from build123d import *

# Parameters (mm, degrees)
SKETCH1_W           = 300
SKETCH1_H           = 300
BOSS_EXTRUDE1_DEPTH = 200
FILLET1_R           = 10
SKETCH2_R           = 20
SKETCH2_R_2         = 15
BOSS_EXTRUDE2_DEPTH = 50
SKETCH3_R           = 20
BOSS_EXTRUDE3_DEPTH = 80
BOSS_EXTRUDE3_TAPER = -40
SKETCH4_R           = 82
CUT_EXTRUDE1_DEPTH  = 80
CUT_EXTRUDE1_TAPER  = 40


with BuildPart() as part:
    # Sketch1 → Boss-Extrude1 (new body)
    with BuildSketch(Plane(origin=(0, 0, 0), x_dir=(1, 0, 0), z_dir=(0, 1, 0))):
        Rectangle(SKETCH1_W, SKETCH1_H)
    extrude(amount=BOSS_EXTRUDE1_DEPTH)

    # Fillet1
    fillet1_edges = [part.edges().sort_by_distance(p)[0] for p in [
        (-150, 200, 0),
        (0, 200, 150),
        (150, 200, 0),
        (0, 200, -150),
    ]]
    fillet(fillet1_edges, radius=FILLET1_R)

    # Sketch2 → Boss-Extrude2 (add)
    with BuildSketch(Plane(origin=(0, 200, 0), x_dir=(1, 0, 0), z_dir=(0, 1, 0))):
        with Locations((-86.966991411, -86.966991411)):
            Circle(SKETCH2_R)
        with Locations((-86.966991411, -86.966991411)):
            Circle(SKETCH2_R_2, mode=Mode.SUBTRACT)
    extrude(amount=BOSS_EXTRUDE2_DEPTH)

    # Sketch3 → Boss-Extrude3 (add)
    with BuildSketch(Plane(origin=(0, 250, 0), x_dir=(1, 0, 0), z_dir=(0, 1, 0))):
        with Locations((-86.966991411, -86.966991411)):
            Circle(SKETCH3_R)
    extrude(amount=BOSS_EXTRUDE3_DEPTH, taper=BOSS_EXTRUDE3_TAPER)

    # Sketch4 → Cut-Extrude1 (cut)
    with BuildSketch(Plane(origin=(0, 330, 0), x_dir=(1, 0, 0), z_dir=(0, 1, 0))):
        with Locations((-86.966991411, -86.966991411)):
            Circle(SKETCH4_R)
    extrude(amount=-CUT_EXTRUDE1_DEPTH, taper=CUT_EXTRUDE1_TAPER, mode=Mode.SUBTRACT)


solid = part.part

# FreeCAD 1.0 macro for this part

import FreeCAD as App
import Part
import Sketcher

V = App.Vector


def edges_at(feature, points):
    """Names of the edges that pass closest to the given points."""
    edges = feature.Shape.Edges
    near = lambda p: min(range(len(edges)), key=lambda i: edges[i].distToShape(Part.Vertex(*p))[0])
    return sorted({f"Edge{near(p) + 1}" for p in points})


def add_polygon(sketch, points):
    """Adds a closed chain of lines whose ends are joined by coincident constraints."""
    first, n = sketch.GeometryCount, len(points)
    for a, b in zip(points, points[1:] + points[:1]):
        sketch.addGeometry(Part.LineSegment(App.Vector(*a, 0), App.Vector(*b, 0)), False)
    for i in range(n):
        sketch.addConstraint(Sketcher.Constraint("Coincident", first + i, 2, first + (i + 1) % n, 1))

doc = App.newDocument("Part")
params = doc.addObject("Spreadsheet::Sheet", "Params")
for row, (alias, value) in enumerate([
    ("sketch1_width", "300 mm"),
    ("pad1_length", "200 mm"),
    ("fillet_radius", "10 mm"),
    ("sketch2_diameter", "40 mm"),
    ("sketch2_diameter2", "30 mm"),
    ("pad2_length", "50 mm"),
    ("sketch3_diameter", "40 mm"),
    ("pad3_length", "80 mm"),
    ("pad3_taper", "40 deg"),
    ("sketch4_diameter", "164 mm"),
    ("pocket1_length", "80 mm"),
    ("pocket1_taper", "-40 deg"),
], start=1):
    params.set(f"A{row}", alias)
    params.set(f"B{row}", "=" + value)
    params.setAlias(f"B{row}", alias)

body = doc.addObject("PartDesign::Body", "Body")

# Sketch on XZ plane
sketch1 = body.newObject("Sketcher::SketchObject", "Sketch")
sketch1.AttachmentSupport = (doc.getObject("XZ_Plane"), [""])
sketch1.MapMode = "FlatFace"
add_polygon(sketch1, [(-150, -150), (-150, 150), (150, 150), (150, -150)])  # lines 0-3
sketch1.addConstraint([
    Sketcher.Constraint("Vertical", 0),
    Sketcher.Constraint("Horizontal", 1),
    Sketcher.Constraint("Vertical", 2),
    Sketcher.Constraint("Horizontal", 3),
    Sketcher.Constraint("Symmetric", 0, 2, 2, 2, -1, 1),
    Sketcher.Constraint("Equal", 3, 0),
    Sketcher.Constraint("DistanceX", 1, 1, 1, 2, 300.0),
])
sketch1.setExpression("Constraints[10]", "Params.sketch1_width")
pad1 = body.newObject("PartDesign::Pad", "Pad")
pad1.Profile = sketch1
pad1.setExpression("Length", "Params.pad1_length")
pad1.Reversed = True
doc.recompute()

fillet = body.newObject("PartDesign::Fillet", "Fillet")
fillet.Base = (pad1, edges_at(pad1, [
    (-150, 200, 0),
    (0, 200, 150),
    (150, 200, 0),
    (0, 200, -150),
]))
fillet.setExpression("Radius", "Params.fillet_radius")

# Sketch on XZ plane
sketch2 = body.newObject("Sketcher::SketchObject", "Sketch001")
sketch2.AttachmentSupport = (doc.getObject("XZ_Plane"), [""])
sketch2.MapMode = "FlatFace"
sketch2.AttachmentOffset = App.Placement(V(0, 0, -200), App.Rotation())
sketch2.addGeometry([
    Part.Circle(V(-87, 87, 0), V(0, 0, 1), 20),
    Part.Circle(V(-87, 87, 0), V(0, 0, 1), 15),
], False)
sketch2.addConstraint([
    Sketcher.Constraint("Coincident", 1, 3, 0, 3),
    Sketcher.Constraint("Diameter", 0, 40.0),
    Sketcher.Constraint("Diameter", 1, 30.0),
    Sketcher.Constraint("DistanceX", 0, 3, -1, 1, 86.966991),
    Sketcher.Constraint("DistanceY", -1, 1, 0, 3, 86.966991),
])
sketch2.setExpression("Constraints[1]", "Params.sketch2_diameter")
sketch2.setExpression("Constraints[2]", "Params.sketch2_diameter2")
pad2 = body.newObject("PartDesign::Pad", "Pad001")
pad2.Profile = sketch2
pad2.setExpression("Length", "Params.pad2_length")
pad2.Reversed = True

# Sketch on XZ plane
sketch3 = body.newObject("Sketcher::SketchObject", "Sketch002")
sketch3.AttachmentSupport = (doc.getObject("XZ_Plane"), [""])
sketch3.MapMode = "FlatFace"
sketch3.AttachmentOffset = App.Placement(V(0, 0, -250), App.Rotation())
sketch3.addGeometry(Part.Circle(V(-87, 87, 0), V(0, 0, 1), 20), False)
sketch3.addConstraint([
    Sketcher.Constraint("Diameter", 0, 40.0),
    Sketcher.Constraint("DistanceX", 0, 3, -1, 1, 86.966991),
    Sketcher.Constraint("DistanceY", -1, 1, 0, 3, 86.966991),
])
sketch3.setExpression("Constraints[0]", "Params.sketch3_diameter")
pad3 = body.newObject("PartDesign::Pad", "Pad002")
pad3.Profile = sketch3
pad3.setExpression("Length", "Params.pad3_length")
pad3.Reversed = True
pad3.setExpression("TaperAngle", "Params.pad3_taper")

# Sketch on XZ plane
sketch4 = body.newObject("Sketcher::SketchObject", "Sketch003")
sketch4.AttachmentSupport = (doc.getObject("XZ_Plane"), [""])
sketch4.MapMode = "FlatFace"
sketch4.AttachmentOffset = App.Placement(V(0, 0, -330), App.Rotation())
sketch4.addGeometry(Part.Circle(V(-87, 87, 0), V(0, 0, 1), 82), False)
sketch4.addConstraint([
    Sketcher.Constraint("Diameter", 0, 164.0),
    Sketcher.Constraint("DistanceX", 0, 3, -1, 1, 86.966991),
    Sketcher.Constraint("DistanceY", -1, 1, 0, 3, 86.966991),
])
sketch4.setExpression("Constraints[0]", "Params.sketch4_diameter")
pocket1 = body.newObject("PartDesign::Pocket", "Pocket")
pocket1.Profile = sketch4
pocket1.setExpression("Length", "Params.pocket1_length")
pocket1.Reversed = True
pocket1.setExpression("TaperAngle", "Params.pocket1_taper")

doc.recompute()
